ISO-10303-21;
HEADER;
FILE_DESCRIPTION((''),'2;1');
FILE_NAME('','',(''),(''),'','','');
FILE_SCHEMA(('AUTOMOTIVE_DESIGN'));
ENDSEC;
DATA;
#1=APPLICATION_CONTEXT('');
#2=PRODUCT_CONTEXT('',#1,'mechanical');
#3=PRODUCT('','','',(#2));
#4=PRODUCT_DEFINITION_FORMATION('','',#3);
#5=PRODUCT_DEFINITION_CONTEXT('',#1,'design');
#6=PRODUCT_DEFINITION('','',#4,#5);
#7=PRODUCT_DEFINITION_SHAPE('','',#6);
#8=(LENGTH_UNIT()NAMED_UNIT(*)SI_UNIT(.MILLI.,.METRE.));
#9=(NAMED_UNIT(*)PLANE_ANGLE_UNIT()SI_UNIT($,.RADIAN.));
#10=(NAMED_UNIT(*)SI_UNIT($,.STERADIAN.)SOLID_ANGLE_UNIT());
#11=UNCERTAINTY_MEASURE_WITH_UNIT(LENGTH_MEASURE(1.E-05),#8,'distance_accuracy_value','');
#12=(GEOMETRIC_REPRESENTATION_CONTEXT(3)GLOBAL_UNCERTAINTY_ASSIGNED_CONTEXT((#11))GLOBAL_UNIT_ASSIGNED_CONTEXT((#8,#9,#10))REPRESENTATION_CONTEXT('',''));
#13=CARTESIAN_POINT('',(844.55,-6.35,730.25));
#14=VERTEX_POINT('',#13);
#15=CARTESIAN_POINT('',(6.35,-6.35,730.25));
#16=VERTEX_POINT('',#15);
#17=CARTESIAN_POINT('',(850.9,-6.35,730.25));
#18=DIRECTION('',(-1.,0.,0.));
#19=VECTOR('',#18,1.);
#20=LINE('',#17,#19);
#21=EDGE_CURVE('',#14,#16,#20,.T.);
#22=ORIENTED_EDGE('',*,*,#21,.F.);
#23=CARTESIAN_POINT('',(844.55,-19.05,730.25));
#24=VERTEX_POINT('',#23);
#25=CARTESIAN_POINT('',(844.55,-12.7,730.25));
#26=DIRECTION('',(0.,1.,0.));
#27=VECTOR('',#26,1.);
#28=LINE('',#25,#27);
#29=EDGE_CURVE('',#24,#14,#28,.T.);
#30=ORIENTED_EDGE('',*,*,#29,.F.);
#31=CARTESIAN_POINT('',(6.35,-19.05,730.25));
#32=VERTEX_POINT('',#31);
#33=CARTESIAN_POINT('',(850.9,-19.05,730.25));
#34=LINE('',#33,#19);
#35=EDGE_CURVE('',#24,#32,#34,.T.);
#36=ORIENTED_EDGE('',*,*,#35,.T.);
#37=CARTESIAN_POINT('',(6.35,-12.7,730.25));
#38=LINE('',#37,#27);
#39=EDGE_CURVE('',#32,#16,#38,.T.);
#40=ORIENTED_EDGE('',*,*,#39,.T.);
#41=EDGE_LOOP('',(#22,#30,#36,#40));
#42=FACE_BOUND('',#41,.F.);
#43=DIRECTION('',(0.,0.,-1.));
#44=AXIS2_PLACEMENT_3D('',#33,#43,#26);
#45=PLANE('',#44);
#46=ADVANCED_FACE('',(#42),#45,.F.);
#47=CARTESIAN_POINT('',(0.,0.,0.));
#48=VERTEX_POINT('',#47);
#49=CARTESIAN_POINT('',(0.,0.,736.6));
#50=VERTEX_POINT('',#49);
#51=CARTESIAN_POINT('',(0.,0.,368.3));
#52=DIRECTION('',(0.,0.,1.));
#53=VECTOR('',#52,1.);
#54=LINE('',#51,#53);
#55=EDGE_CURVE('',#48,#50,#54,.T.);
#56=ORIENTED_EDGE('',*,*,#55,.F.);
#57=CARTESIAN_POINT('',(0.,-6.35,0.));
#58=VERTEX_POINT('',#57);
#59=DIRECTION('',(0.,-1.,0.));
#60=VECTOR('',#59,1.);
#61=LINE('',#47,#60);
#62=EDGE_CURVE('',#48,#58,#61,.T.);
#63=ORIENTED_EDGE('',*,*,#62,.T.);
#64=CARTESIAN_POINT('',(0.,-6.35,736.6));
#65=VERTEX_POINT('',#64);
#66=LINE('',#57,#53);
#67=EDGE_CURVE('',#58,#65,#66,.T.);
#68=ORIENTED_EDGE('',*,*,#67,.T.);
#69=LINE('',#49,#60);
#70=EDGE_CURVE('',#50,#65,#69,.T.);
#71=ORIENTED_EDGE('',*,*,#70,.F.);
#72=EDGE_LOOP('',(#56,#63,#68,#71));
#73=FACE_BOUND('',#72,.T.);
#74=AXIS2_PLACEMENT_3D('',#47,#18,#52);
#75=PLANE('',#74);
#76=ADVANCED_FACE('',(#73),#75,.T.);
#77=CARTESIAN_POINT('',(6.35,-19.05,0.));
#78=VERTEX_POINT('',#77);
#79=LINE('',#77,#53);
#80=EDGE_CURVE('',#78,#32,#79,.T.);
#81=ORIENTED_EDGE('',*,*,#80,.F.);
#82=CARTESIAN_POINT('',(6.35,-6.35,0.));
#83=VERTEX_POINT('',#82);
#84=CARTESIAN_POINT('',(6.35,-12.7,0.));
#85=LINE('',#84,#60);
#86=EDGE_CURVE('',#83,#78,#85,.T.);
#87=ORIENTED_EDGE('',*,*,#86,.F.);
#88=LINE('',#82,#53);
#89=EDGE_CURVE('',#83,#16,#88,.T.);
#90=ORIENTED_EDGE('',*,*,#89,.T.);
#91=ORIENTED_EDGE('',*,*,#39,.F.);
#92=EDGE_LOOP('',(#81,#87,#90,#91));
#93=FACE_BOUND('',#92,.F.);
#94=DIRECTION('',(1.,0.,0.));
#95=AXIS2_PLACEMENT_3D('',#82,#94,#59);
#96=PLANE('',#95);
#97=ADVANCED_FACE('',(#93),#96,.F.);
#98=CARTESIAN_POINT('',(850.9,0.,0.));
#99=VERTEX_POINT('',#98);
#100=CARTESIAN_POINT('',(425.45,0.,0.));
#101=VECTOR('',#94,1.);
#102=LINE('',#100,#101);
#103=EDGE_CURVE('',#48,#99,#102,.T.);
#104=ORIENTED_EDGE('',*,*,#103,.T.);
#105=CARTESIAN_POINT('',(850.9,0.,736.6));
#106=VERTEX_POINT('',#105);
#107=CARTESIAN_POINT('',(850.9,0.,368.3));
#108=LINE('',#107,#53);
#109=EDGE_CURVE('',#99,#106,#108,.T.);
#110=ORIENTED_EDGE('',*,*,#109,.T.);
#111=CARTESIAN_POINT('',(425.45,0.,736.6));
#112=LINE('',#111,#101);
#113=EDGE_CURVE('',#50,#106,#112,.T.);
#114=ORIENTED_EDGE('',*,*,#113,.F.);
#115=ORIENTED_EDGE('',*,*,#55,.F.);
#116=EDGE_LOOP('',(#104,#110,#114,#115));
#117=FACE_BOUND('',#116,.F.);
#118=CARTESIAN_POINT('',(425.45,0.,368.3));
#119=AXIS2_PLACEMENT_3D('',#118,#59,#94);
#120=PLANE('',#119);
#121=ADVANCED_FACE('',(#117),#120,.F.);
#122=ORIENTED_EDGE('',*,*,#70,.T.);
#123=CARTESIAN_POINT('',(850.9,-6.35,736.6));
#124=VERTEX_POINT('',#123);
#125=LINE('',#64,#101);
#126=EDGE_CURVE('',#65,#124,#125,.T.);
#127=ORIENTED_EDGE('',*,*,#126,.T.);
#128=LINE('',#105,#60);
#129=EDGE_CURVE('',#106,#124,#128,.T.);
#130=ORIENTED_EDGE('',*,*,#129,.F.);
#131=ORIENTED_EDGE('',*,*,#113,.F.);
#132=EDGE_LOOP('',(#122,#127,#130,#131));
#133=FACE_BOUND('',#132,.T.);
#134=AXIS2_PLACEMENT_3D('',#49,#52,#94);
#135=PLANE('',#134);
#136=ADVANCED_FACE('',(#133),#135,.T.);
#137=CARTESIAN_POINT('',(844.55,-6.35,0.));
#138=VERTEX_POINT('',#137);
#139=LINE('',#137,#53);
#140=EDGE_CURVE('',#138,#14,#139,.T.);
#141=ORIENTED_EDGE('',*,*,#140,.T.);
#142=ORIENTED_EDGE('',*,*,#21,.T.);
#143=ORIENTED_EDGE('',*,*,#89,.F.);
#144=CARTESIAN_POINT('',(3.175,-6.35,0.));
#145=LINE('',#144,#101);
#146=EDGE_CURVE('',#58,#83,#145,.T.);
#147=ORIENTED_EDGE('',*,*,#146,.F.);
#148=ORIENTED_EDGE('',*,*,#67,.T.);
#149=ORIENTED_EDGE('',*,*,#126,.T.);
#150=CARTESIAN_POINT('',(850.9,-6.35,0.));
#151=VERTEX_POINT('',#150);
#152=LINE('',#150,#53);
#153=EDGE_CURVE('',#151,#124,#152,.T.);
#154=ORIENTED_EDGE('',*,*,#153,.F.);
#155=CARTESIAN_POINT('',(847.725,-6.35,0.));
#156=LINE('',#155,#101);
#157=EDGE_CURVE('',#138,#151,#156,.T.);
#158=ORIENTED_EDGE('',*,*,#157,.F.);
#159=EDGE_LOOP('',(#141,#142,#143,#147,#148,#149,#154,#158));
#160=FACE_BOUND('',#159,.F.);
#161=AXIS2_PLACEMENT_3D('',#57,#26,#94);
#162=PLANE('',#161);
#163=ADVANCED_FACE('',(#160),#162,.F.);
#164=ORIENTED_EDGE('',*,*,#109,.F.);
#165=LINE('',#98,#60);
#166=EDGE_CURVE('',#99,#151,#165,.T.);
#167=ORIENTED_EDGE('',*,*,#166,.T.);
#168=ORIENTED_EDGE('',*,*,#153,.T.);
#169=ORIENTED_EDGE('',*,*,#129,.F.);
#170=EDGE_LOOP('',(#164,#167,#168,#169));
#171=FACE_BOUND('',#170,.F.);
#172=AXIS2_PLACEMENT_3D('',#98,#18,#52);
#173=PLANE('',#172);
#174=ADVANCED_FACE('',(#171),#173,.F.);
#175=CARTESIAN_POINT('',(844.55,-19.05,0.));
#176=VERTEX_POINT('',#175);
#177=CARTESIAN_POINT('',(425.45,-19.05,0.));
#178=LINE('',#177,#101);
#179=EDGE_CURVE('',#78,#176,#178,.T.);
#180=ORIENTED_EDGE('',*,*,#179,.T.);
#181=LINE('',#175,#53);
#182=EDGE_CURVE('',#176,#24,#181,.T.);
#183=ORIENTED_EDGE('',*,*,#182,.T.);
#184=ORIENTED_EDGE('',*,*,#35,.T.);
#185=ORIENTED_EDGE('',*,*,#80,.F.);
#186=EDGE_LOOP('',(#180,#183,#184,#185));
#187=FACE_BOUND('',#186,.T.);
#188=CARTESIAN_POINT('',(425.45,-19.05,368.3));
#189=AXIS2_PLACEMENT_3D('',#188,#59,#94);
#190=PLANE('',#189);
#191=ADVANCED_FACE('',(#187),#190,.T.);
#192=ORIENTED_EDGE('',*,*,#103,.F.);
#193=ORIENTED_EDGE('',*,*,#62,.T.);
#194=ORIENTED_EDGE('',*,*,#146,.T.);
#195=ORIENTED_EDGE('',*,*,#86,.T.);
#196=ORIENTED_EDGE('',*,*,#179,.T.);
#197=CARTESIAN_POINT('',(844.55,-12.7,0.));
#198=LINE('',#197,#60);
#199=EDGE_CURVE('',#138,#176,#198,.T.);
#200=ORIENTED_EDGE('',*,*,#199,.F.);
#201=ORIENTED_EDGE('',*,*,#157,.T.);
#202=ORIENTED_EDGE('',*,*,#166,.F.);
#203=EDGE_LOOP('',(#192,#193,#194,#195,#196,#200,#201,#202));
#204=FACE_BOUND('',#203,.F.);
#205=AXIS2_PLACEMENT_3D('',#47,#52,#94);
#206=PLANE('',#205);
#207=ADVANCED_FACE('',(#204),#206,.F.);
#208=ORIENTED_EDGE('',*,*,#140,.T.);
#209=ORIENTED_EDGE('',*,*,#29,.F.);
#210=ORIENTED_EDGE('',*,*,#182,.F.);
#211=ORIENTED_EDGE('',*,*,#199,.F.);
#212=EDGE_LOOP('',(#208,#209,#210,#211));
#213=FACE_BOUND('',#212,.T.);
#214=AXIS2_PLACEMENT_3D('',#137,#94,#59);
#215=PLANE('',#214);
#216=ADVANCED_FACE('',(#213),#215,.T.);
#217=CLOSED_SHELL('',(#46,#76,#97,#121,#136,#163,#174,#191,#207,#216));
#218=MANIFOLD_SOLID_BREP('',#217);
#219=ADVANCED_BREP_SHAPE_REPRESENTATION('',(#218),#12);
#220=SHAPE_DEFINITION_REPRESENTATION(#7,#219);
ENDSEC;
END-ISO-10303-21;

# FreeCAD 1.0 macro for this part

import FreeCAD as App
import Part
import Sketcher
from FreeCAD import Vector
Q = App.Units.Quantity


def add_polygon(sketch, points):
    """Adds a closed chain of lines whose ends are joined by coincident constraints."""
    first, n = sketch.GeometryCount, len(points)
    for a, b in zip(points, points[1:] + points[:1]):
        sketch.addGeometry(Part.LineSegment(App.Vector(*a, 0), App.Vector(*b, 0)), False)
    for i in range(n):
        sketch.addConstraint(Sketcher.Constraint("Coincident", first + i, 2, first + (i + 1) % n, 1))

doc = App.newDocument("Part")
body = doc.addObject("PartDesign::Body", "Body")

# Sketch on XZ plane
sketch1 = doc.addObject("Sketcher::SketchObject", "Sketch")
body.addObject(sketch1)
sketch1.AttachmentSupport = (doc.XZ_Plane, [""])
sketch1.MapMode = "FlatFace"
add_polygon(sketch1, [(0, 737), (0, 0), (851, 0), (851, 737)])  # lines 0-3
sketch1.addConstraint([
    Sketcher.Constraint("Vertical", 0),
    Sketcher.Constraint("Horizontal", 1),
    Sketcher.Constraint("Vertical", 2),
    Sketcher.Constraint("Horizontal", 3),
    Sketcher.Constraint("Coincident", 0, 2, -1, 1),
    Sketcher.Constraint("DistanceY", 0, 2, 0, 1, Q("29 in")),
    Sketcher.Constraint("DistanceX", 1, 1, 1, 2, Q("33.5 in")),
])
pad1 = doc.addObject("PartDesign::Pad", "Pad")
body.addObject(pad1)
pad1.Profile = sketch1
pad1.Length = Q("0.75 in")

# Sketch on XY plane
sketch2 = doc.addObject("Sketcher::SketchObject", "Sketch001")
body.addObject(sketch2)
sketch2.AttachmentSupport = (doc.XY_Plane, [""])
sketch2.MapMode = "FlatFace"
add_polygon(sketch2, [(845, -19), (845, -6), (851, -6), (851, -19)])  # lines 0-3
add_polygon(sketch2, [(0, -19), (0, -6), (6, -6), (6, -19)])  # lines 4-7
sketch2.addConstraint([
    Sketcher.Constraint("Vertical", 0),
    Sketcher.Constraint("Horizontal", 1),
    Sketcher.Constraint("Vertical", 2),
    Sketcher.Constraint("Horizontal", 3),
    Sketcher.Constraint("Vertical", 4),
    Sketcher.Constraint("Horizontal", 5),
    Sketcher.Constraint("Vertical", 6),
    Sketcher.Constraint("Horizontal", 7),
    Sketcher.Constraint("PointOnObject", 4, 2, -2),
    Sketcher.Constraint("Horizontal", 1, 2, 4, 2),
    Sketcher.Constraint("Horizontal", 3, 2, 6, 2),
    Sketcher.Constraint("Equal", 3, 5),
    Sketcher.Constraint("DistanceY", 0, 1, 0, 2, Q("0.5 in")),
    Sketcher.Constraint("DistanceX", 5, 2, 0, 2, Q("33 in")),
    Sketcher.Constraint("DistanceX", 1, 1, 1, 2, Q("0.25 in")),
    Sketcher.Constraint("DistanceY", 0, 2, -1, 1, Q("0.25 in")),
])
pocket1 = doc.addObject("PartDesign::Pocket", "Pocket")
body.addObject(pocket1)
pocket1.Profile = sketch2
pocket1.Type = "ThroughAll"
pocket1.Reversed = True

# Sketch on YZ plane
sketch3 = doc.addObject("Sketcher::SketchObject", "Sketch002")
body.addObject(sketch3)
sketch3.AttachmentSupport = (doc.YZ_Plane, [""])
sketch3.MapMode = "FlatFace"
sketch3.AttachmentOffset = App.Placement(Vector(0, 0, 33.5 * 25.4), App.Rotation())
add_polygon(sketch3, [(-19, 737), (-19, 730), (-6, 730), (-6, 737)])  # lines 0-3
sketch3.addConstraint([
    Sketcher.Constraint("Vertical", 0),
    Sketcher.Constraint("Horizontal", 1),
    Sketcher.Constraint("Vertical", 2),
    Sketcher.Constraint("Horizontal", 3),
    Sketcher.Constraint("DistanceX", 1, 1, 1, 2, Q("0.5 in")),
    Sketcher.Constraint("DistanceY", -1, 1, 2, 2, Q("29 in")),
    Sketcher.Constraint("DistanceY", 0, 2, 0, 1, Q("0.25 in")),
    Sketcher.Constraint("DistanceX", 0, 2, -1, 1, Q("0.75 in")),
])
pocket2 = doc.addObject("PartDesign::Pocket", "Pocket001")
body.addObject(pocket2)
pocket2.Profile = sketch3
pocket2.Type = "ThroughAll"

doc.recompute()
